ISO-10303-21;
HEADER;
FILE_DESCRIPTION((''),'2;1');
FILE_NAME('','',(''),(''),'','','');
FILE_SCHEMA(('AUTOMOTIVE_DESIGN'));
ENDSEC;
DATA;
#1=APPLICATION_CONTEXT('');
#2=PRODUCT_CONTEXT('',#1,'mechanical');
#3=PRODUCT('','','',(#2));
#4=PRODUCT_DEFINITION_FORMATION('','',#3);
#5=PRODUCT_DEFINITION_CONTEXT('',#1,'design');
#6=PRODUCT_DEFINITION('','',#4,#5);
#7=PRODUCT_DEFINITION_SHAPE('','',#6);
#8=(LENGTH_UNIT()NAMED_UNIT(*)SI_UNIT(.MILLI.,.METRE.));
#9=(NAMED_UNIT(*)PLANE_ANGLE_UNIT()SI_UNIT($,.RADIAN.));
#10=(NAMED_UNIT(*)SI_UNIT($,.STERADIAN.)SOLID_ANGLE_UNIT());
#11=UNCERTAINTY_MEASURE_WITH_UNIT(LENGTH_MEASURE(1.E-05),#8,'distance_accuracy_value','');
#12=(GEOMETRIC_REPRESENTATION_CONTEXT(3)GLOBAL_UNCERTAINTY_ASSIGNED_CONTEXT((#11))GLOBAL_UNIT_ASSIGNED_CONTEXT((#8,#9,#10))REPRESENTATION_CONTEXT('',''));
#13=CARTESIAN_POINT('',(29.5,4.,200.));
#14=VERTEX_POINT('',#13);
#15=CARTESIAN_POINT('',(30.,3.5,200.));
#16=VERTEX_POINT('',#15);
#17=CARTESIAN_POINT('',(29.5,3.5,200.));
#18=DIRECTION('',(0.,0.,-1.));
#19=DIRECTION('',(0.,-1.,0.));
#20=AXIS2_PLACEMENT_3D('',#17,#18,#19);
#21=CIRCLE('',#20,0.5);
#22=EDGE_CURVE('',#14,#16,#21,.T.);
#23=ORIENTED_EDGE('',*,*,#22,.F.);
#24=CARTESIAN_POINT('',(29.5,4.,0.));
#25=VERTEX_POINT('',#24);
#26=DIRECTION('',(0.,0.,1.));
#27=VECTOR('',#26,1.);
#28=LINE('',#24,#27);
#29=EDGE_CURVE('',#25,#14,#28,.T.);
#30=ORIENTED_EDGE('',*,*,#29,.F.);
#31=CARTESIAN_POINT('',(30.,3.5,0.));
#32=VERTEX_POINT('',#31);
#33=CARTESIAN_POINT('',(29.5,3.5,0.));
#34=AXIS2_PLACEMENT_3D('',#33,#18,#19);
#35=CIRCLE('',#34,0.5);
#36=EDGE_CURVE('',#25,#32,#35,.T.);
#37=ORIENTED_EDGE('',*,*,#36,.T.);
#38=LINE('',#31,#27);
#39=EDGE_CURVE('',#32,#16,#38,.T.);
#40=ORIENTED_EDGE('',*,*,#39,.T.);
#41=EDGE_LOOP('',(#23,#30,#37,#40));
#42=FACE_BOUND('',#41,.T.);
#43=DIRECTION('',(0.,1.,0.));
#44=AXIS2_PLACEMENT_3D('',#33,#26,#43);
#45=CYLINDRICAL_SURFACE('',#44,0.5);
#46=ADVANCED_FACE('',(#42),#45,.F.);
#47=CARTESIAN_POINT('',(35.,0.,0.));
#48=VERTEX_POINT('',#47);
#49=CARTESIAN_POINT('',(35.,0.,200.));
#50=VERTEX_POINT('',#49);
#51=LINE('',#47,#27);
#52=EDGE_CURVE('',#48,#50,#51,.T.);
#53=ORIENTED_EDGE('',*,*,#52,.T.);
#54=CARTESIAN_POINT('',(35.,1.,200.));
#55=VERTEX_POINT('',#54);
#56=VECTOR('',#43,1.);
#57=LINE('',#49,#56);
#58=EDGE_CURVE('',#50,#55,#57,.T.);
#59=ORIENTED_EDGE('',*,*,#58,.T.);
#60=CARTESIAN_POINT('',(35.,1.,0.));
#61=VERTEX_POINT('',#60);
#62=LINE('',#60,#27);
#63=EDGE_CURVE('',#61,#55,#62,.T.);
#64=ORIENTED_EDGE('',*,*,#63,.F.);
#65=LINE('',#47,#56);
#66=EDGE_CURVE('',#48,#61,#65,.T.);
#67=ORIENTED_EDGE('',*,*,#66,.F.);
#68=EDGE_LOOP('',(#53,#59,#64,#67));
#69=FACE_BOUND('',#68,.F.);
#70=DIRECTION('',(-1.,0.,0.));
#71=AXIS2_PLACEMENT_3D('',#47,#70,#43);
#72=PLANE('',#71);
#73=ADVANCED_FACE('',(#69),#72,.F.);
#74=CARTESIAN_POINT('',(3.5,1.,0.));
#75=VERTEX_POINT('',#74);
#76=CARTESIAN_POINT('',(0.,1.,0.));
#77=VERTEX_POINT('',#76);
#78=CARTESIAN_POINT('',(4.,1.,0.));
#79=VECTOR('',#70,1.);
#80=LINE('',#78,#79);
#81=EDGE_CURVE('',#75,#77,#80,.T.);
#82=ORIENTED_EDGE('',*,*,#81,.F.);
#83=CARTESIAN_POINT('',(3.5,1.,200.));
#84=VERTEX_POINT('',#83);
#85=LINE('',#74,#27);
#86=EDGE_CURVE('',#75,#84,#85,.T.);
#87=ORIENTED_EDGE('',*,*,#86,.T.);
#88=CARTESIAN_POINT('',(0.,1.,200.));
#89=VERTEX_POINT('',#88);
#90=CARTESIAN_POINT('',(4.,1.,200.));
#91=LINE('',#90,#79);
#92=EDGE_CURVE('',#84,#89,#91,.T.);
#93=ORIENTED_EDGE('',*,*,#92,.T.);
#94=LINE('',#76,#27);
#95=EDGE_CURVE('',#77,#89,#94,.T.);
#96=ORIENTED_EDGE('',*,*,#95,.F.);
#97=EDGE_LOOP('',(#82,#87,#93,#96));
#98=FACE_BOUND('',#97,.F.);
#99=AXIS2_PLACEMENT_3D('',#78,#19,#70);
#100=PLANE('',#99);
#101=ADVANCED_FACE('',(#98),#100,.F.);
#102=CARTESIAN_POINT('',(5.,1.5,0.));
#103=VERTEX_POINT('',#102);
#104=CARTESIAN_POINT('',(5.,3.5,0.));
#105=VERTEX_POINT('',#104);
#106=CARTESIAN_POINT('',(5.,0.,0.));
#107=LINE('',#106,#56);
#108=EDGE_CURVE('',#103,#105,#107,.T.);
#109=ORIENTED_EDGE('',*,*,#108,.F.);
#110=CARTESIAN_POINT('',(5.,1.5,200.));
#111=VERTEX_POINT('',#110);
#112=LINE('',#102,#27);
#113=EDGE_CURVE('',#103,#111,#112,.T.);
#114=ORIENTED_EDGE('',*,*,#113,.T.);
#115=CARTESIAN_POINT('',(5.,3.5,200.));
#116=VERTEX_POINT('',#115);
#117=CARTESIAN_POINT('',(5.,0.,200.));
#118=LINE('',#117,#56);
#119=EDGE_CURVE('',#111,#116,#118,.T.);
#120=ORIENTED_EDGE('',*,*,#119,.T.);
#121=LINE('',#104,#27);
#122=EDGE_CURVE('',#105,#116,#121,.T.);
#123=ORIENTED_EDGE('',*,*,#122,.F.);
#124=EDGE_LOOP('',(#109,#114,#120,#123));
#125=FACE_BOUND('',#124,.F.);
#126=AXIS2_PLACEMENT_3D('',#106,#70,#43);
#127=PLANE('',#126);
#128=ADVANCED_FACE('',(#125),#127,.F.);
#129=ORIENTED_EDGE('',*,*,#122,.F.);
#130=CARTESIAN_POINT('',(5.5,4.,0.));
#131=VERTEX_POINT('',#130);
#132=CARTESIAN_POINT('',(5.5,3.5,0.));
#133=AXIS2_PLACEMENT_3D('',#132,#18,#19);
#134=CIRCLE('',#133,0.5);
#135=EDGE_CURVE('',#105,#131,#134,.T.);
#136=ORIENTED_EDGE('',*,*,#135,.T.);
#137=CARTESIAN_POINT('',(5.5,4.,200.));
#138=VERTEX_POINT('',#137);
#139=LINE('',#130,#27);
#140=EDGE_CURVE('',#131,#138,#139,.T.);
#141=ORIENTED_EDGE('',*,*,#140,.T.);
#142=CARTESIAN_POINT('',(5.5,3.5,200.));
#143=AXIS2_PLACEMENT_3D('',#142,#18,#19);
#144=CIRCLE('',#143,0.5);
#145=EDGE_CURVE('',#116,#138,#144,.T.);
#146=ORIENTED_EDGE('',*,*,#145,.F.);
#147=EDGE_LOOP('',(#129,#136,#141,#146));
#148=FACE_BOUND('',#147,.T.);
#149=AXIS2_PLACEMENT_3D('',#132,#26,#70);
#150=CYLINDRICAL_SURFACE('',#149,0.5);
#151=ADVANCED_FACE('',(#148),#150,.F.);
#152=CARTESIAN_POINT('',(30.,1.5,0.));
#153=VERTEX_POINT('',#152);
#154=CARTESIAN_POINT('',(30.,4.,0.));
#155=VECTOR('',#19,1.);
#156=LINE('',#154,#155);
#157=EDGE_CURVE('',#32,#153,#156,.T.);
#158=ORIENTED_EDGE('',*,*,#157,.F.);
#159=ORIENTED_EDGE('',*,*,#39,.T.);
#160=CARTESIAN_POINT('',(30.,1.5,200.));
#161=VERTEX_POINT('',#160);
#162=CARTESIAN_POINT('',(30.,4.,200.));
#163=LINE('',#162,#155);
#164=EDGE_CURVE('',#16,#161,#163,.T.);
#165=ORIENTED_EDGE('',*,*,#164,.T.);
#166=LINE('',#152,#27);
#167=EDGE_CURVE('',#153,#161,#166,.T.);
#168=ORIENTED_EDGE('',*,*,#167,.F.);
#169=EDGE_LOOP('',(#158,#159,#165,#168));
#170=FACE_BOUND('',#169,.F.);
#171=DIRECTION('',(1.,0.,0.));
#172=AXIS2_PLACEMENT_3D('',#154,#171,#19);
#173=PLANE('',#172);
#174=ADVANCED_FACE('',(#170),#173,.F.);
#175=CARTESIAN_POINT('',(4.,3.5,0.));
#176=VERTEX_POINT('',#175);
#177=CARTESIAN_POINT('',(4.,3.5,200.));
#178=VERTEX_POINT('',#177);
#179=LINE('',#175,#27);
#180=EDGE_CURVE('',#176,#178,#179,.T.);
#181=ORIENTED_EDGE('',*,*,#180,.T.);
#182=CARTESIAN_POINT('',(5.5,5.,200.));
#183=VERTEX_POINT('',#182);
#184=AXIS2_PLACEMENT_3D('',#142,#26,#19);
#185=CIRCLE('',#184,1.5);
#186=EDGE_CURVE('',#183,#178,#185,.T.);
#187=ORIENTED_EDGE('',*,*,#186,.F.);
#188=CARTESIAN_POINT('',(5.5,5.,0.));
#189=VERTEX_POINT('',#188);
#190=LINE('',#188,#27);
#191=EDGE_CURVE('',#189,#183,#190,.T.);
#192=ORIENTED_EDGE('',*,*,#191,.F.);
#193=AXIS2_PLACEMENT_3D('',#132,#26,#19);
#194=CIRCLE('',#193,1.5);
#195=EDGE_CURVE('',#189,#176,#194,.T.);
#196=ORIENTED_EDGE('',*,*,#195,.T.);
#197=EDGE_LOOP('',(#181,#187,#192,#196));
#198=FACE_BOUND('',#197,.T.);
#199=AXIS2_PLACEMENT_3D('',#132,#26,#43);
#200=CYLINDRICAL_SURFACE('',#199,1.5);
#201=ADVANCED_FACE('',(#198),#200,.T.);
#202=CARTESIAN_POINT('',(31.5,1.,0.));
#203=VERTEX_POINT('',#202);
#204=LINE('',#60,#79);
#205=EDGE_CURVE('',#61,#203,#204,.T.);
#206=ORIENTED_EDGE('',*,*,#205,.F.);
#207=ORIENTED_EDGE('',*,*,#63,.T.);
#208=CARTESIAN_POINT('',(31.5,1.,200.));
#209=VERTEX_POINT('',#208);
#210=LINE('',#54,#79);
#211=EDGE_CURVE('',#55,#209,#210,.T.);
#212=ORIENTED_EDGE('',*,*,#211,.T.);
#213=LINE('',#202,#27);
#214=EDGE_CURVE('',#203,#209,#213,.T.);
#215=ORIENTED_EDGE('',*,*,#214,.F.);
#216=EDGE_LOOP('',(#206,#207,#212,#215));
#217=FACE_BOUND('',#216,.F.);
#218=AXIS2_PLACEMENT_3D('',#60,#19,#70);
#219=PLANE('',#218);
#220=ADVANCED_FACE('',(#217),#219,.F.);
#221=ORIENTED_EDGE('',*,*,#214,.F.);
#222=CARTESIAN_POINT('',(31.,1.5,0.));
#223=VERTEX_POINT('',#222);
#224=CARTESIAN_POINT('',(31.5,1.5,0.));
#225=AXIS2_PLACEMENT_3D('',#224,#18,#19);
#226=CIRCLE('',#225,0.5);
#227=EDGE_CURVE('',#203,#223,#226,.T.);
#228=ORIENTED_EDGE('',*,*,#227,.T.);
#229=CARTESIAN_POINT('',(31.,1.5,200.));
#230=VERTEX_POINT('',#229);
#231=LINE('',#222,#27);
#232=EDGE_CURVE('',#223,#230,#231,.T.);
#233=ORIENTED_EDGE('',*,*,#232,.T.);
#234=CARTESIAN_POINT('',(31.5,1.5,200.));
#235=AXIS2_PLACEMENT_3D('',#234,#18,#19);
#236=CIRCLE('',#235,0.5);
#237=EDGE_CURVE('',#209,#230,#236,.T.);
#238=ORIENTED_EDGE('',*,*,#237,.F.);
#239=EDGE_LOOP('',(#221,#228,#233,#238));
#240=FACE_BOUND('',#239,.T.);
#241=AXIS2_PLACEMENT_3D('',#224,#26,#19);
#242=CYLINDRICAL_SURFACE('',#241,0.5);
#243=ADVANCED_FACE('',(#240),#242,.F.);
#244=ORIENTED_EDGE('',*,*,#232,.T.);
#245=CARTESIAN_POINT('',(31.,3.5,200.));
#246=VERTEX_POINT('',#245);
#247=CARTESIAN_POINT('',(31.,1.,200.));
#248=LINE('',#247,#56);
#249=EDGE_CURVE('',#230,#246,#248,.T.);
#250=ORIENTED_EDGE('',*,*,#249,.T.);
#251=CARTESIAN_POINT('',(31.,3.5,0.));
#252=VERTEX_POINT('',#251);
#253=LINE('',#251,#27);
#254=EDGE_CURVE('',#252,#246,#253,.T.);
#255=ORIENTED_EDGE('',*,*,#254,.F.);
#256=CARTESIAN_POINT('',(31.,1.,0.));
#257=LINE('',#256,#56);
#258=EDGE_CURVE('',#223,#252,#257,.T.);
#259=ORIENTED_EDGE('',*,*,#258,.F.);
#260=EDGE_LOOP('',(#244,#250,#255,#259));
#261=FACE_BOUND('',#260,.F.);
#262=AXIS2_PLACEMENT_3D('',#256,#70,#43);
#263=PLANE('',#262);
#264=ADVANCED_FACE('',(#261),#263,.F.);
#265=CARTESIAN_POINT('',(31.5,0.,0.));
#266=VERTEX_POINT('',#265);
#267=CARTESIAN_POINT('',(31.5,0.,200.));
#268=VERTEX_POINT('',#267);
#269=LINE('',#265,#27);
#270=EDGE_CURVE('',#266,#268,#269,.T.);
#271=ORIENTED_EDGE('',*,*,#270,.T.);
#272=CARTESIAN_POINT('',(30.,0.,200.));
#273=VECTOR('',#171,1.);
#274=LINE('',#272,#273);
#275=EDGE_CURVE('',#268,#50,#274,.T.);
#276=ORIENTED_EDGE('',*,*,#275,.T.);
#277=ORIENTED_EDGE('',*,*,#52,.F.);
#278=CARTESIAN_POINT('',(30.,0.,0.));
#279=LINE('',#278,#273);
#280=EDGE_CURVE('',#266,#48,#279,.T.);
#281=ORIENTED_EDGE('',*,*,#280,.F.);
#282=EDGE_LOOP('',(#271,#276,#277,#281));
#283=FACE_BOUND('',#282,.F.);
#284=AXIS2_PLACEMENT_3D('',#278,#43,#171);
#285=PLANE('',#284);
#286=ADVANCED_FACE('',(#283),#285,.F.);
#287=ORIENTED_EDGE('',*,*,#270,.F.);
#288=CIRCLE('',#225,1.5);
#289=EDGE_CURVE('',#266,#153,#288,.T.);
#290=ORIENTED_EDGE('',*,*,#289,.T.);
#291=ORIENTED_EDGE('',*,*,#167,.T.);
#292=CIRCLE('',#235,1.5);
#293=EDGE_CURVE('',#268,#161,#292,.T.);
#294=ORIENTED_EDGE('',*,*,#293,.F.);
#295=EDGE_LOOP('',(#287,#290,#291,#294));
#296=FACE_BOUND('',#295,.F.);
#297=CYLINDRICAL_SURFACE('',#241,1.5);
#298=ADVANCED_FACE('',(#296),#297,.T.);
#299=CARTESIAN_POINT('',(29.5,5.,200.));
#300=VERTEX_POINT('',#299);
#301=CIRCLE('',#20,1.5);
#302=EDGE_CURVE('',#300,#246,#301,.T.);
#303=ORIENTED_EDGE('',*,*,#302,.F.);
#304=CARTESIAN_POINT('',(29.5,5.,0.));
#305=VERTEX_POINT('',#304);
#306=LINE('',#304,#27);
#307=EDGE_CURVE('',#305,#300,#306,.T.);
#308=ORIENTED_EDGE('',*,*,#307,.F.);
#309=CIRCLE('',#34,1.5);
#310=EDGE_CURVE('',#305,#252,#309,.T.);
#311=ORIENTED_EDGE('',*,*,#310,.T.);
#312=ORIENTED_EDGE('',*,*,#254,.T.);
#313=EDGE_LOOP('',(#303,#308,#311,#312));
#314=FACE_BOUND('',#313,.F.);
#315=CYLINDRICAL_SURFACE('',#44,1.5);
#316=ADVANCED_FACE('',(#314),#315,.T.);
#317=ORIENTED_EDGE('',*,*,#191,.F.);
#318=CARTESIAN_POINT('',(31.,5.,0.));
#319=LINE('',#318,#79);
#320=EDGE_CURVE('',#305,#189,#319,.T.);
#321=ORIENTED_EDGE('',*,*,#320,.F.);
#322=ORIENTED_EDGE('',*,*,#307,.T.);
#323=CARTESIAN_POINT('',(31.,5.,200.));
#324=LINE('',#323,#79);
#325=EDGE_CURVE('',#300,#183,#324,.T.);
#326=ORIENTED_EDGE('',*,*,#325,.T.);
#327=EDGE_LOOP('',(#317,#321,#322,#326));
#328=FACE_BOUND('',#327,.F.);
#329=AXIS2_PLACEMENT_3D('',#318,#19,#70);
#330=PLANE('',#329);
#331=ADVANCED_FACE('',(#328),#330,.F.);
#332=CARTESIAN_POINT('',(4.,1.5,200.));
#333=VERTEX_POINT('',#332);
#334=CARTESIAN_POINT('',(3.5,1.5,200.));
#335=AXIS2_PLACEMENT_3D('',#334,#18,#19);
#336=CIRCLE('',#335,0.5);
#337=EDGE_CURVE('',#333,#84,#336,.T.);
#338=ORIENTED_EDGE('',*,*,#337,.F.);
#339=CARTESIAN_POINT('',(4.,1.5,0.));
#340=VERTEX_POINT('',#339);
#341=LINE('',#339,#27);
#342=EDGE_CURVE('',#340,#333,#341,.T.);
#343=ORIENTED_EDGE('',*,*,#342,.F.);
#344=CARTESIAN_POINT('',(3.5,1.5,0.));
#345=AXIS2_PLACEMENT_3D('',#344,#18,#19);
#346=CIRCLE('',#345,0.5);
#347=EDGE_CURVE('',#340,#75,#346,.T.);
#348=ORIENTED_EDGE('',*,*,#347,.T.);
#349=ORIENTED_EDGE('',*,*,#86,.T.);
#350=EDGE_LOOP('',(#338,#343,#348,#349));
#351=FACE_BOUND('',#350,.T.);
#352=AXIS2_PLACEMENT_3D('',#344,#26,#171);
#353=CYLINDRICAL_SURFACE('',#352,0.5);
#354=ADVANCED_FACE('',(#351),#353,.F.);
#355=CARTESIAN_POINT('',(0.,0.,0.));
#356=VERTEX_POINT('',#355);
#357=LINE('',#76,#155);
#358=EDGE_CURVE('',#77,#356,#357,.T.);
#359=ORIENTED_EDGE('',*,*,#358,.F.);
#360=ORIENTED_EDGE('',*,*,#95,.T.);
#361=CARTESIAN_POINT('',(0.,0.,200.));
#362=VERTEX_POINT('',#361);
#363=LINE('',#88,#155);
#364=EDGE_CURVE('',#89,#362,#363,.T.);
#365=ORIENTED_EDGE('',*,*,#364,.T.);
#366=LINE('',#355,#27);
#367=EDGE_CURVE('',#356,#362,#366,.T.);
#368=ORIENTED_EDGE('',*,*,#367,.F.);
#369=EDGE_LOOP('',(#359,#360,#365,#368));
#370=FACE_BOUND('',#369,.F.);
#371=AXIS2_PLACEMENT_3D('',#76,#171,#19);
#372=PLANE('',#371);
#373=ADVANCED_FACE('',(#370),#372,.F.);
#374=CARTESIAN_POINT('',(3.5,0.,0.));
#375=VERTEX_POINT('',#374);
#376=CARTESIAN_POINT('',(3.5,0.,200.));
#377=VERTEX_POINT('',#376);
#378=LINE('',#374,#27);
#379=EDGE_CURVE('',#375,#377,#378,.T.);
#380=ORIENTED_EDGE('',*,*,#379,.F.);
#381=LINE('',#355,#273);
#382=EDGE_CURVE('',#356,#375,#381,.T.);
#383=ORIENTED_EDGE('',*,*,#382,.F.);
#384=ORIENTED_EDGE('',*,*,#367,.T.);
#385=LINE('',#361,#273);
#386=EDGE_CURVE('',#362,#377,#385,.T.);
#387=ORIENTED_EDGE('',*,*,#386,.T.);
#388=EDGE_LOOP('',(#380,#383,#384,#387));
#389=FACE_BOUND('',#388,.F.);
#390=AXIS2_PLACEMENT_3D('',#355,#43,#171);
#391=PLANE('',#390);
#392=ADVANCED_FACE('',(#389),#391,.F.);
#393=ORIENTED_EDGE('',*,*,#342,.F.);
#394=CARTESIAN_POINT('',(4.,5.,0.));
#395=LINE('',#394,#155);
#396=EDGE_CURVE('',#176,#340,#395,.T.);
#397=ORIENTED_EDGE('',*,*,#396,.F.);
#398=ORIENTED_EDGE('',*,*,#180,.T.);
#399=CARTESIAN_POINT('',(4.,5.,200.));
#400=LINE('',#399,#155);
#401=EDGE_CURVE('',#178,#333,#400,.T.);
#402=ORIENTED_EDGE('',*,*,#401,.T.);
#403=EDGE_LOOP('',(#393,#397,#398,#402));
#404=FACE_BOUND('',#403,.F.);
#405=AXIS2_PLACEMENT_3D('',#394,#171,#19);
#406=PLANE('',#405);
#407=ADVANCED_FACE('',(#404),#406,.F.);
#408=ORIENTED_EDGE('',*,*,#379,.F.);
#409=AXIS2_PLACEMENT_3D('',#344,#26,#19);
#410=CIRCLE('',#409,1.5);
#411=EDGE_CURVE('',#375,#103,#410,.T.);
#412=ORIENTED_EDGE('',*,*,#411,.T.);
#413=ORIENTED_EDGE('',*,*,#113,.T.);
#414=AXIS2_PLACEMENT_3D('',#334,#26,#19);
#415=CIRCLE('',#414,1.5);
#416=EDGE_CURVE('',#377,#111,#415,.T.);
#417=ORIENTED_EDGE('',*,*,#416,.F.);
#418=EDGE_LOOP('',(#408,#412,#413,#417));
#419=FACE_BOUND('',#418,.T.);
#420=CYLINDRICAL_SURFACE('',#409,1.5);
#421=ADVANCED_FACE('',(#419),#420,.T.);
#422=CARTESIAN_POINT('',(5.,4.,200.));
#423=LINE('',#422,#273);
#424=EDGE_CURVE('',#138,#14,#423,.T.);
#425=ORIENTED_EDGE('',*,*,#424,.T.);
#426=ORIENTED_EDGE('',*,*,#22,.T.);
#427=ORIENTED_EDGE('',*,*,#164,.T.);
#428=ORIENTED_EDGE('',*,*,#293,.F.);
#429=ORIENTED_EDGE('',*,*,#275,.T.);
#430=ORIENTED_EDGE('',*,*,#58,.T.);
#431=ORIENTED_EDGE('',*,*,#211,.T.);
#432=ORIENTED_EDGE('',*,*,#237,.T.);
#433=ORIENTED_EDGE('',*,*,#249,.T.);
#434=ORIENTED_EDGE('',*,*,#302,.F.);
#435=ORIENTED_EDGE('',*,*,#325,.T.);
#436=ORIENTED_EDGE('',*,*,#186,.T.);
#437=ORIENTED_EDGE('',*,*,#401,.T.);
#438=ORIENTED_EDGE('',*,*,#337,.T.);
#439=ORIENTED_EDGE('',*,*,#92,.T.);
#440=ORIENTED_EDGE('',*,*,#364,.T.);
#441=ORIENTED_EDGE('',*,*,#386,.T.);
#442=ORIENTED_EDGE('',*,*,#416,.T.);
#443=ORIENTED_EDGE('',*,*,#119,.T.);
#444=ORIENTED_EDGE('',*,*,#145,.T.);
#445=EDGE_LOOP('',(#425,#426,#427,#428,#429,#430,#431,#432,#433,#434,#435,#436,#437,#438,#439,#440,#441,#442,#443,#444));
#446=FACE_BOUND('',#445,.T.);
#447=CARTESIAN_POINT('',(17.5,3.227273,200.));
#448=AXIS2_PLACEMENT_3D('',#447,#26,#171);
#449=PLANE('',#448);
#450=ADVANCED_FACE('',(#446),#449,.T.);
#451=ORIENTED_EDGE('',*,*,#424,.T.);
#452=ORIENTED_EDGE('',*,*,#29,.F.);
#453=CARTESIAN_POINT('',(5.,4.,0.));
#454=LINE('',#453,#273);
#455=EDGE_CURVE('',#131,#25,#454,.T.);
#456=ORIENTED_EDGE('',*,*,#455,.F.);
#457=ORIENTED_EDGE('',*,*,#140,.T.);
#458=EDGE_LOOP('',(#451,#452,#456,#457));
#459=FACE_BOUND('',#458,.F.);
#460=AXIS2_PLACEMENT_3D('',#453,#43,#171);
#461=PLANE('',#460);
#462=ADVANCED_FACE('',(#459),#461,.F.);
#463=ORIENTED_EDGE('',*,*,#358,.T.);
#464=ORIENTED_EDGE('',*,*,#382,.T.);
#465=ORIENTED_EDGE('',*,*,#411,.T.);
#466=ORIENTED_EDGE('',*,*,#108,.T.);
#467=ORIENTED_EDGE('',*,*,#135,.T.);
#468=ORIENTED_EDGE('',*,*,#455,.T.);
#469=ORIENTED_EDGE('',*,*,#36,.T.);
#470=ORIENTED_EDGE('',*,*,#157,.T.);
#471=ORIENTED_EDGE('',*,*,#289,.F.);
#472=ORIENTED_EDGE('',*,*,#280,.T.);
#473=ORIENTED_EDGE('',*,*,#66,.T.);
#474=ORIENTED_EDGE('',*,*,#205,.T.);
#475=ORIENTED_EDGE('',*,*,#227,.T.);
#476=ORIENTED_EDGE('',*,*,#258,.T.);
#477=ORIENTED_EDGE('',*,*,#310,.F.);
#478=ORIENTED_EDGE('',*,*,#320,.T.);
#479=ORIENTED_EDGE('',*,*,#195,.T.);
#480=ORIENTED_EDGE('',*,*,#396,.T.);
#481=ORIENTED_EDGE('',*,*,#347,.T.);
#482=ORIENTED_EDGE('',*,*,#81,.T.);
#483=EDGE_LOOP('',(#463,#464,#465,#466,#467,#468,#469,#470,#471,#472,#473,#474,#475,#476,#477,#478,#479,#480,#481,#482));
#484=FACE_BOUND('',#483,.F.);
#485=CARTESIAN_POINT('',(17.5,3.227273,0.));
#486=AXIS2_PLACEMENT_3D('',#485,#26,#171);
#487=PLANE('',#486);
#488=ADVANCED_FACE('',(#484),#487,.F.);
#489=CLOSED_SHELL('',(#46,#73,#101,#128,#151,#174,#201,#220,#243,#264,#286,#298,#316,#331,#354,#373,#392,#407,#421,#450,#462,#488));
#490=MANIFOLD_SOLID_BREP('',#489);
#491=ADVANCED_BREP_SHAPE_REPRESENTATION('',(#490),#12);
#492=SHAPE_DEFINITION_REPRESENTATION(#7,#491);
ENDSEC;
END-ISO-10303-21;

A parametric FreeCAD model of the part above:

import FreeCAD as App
import Part
import Sketcher
from FreeCAD import Vector
Q = App.Units.Quantity


def edges_at(feature, points):
    """Names of the edges that pass closest to the given points."""
    edges = feature.Shape.Edges
    near = lambda p: min(range(len(edges)), key=lambda i: edges[i].distToShape(Part.Vertex(*p))[0])
    return sorted({f"Edge{near(p) + 1}" for p in points})


def add_polygon(sketch, points):
    """Adds a closed chain of lines whose ends are joined by coincident constraints."""
    first, n = sketch.GeometryCount, len(points)
    for a, b in zip(points, points[1:] + points[:1]):
        sketch.addGeometry(Part.LineSegment(App.Vector(*a, 0), App.Vector(*b, 0)), False)
    for i in range(n):
        sketch.addConstraint(Sketcher.Constraint("Coincident", first + i, 2, first + (i + 1) % n, 1))

doc = App.newDocument("Part")
body = doc.addObject("PartDesign::Body", "Body")

# Sketch on XY plane
sketch1 = doc.addObject("Sketcher::SketchObject", "Sketch")
body.addObject(sketch1)
sketch1.AttachmentSupport = (doc.XY_Plane, [""])
sketch1.MapMode = "FlatFace"
add_polygon(sketch1, [(0, 0), (5, 0), (5, 4), (30, 4), (30, 0), (35, 0), (35, 1), (31, 1), (31, 5), (4, 5), (4, 1), (0, 1)])  # lines 0-11
sketch1.addConstraint([
    Sketcher.Constraint("Horizontal", 0),
    Sketcher.Constraint("Vertical", 1),
    Sketcher.Constraint("Horizontal", 2),
    Sketcher.Constraint("Vertical", 3),
    Sketcher.Constraint("Horizontal", 4),
    Sketcher.Constraint("Vertical", 5),
    Sketcher.Constraint("Horizontal", 6),
    Sketcher.Constraint("Vertical", 7),
    Sketcher.Constraint("Horizontal", 8),
    Sketcher.Constraint("Vertical", 9),
    Sketcher.Constraint("Horizontal", 10),
    Sketcher.Constraint("Vertical", 11),
    Sketcher.Constraint("Coincident", 11, 2, -1, 1),
    Sketcher.Constraint("PointOnObject", 3, 2, -1),
    Sketcher.Constraint("Horizontal", 6, 2, 9, 2),
    Sketcher.Constraint("Equal", 0, 4),
    Sketcher.Constraint("Equal", 6, 10),
    Sketcher.Constraint("Equal", 10, 1),
    Sketcher.Constraint("Equal", 3, 7),
    Sketcher.Constraint("DistanceX", 0, 1, 0, 2, Q("5 mm")),
    Sketcher.Constraint("DistanceX", 2, 1, 2, 2, Q("25 mm")),
    Sketcher.Constraint("DistanceX", 6, 2, 6, 1, Q("4 mm")),
    Sketcher.Constraint("DistanceY", 5, 1, 5, 2, Q("1 mm")),
])
pad1 = doc.addObject("PartDesign::Pad", "Pad")
body.addObject(pad1)
pad1.Profile = sketch1
pad1.Length = 200
doc.recompute()

fillet = doc.addObject("PartDesign::Fillet", "Fillet")
body.addObject(fillet)
fillet.Base = (pad1, edges_at(pad1, [(4, 5, 100)]))
fillet.Radius = 1.5
doc.recompute()

fillet2 = doc.addObject("PartDesign::Fillet", "Fillet001")
body.addObject(fillet2)
fillet2.Base = (fillet, edges_at(fillet, [(31, 5, 100), (30, 0, 100), (5, 0, 100)]))
fillet2.Radius = 1.5
doc.recompute()

fillet3 = doc.addObject("PartDesign::Fillet", "Fillet002")
body.addObject(fillet3)
fillet3.Base = (fillet2, edges_at(fillet2, [(5, 4, 100)]))
fillet3.Radius = 0.5
doc.recompute()

fillet4 = doc.addObject("PartDesign::Fillet", "Fillet003")
body.addObject(fillet4)
fillet4.Base = (fillet3, edges_at(fillet3, [(31, 1, 100)]))
fillet4.Radius = 0.5
doc.recompute()

fillet5 = doc.addObject("PartDesign::Fillet", "Fillet004")
body.addObject(fillet5)
fillet5.Base = (fillet4, edges_at(fillet4, [(4, 1, 100)]))
fillet5.Radius = 0.5
doc.recompute()

fillet6 = doc.addObject("PartDesign::Fillet", "Fillet005")
body.addObject(fillet6)
fillet6.Base = (fillet5, edges_at(fillet5, [(30, 4, 100)]))
fillet6.Radius = 0.5

doc.recompute()
